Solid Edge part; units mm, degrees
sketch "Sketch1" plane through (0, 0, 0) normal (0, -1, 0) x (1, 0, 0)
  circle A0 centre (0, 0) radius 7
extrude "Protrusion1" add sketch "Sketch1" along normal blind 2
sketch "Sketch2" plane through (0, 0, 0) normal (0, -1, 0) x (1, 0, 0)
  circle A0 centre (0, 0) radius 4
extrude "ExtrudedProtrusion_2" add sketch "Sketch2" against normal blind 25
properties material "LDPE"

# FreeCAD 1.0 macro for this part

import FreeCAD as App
import Part
import Sketcher

V = App.Vector
Q = App.Units.Quantity

doc = App.newDocument("Part")
body = doc.addObject("PartDesign::Body", "Body")

# Sketch on XZ plane
sketch1 = body.newObject("Sketcher::SketchObject", "Sketch")
sketch1.AttachmentSupport = (doc.getObject("XZ_Plane"), [""])
sketch1.MapMode = "FlatFace"
sketch1.addGeometry(Part.Circle(V(0, 0, 0), V(0, 0, 1), 7), False)
sketch1.addConstraint([
    Sketcher.Constraint("Coincident", 0, 3, -1, 1),
    Sketcher.Constraint("Diameter", 0, Q("14 mm")),
])
pad1 = body.newObject("PartDesign::Pad", "Pad")
pad1.Profile = sketch1
pad1.Length = 2

# Sketch on XZ plane
sketch2 = body.newObject("Sketcher::SketchObject", "Sketch001")
sketch2.AttachmentSupport = (doc.getObject("XZ_Plane"), [""])
sketch2.MapMode = "FlatFace"
sketch2.addGeometry(Part.Circle(V(0, 0, 0), V(0, 0, 1), 4), False)
sketch2.addConstraint([
    Sketcher.Constraint("Coincident", 0, 3, -1, 1),
    Sketcher.Constraint("Diameter", 0, Q("8 mm")),
])
pad2 = body.newObject("PartDesign::Pad", "Pad001")
pad2.Profile = sketch2
pad2.Length = 25
pad2.Reversed = True

doc.recompute()
